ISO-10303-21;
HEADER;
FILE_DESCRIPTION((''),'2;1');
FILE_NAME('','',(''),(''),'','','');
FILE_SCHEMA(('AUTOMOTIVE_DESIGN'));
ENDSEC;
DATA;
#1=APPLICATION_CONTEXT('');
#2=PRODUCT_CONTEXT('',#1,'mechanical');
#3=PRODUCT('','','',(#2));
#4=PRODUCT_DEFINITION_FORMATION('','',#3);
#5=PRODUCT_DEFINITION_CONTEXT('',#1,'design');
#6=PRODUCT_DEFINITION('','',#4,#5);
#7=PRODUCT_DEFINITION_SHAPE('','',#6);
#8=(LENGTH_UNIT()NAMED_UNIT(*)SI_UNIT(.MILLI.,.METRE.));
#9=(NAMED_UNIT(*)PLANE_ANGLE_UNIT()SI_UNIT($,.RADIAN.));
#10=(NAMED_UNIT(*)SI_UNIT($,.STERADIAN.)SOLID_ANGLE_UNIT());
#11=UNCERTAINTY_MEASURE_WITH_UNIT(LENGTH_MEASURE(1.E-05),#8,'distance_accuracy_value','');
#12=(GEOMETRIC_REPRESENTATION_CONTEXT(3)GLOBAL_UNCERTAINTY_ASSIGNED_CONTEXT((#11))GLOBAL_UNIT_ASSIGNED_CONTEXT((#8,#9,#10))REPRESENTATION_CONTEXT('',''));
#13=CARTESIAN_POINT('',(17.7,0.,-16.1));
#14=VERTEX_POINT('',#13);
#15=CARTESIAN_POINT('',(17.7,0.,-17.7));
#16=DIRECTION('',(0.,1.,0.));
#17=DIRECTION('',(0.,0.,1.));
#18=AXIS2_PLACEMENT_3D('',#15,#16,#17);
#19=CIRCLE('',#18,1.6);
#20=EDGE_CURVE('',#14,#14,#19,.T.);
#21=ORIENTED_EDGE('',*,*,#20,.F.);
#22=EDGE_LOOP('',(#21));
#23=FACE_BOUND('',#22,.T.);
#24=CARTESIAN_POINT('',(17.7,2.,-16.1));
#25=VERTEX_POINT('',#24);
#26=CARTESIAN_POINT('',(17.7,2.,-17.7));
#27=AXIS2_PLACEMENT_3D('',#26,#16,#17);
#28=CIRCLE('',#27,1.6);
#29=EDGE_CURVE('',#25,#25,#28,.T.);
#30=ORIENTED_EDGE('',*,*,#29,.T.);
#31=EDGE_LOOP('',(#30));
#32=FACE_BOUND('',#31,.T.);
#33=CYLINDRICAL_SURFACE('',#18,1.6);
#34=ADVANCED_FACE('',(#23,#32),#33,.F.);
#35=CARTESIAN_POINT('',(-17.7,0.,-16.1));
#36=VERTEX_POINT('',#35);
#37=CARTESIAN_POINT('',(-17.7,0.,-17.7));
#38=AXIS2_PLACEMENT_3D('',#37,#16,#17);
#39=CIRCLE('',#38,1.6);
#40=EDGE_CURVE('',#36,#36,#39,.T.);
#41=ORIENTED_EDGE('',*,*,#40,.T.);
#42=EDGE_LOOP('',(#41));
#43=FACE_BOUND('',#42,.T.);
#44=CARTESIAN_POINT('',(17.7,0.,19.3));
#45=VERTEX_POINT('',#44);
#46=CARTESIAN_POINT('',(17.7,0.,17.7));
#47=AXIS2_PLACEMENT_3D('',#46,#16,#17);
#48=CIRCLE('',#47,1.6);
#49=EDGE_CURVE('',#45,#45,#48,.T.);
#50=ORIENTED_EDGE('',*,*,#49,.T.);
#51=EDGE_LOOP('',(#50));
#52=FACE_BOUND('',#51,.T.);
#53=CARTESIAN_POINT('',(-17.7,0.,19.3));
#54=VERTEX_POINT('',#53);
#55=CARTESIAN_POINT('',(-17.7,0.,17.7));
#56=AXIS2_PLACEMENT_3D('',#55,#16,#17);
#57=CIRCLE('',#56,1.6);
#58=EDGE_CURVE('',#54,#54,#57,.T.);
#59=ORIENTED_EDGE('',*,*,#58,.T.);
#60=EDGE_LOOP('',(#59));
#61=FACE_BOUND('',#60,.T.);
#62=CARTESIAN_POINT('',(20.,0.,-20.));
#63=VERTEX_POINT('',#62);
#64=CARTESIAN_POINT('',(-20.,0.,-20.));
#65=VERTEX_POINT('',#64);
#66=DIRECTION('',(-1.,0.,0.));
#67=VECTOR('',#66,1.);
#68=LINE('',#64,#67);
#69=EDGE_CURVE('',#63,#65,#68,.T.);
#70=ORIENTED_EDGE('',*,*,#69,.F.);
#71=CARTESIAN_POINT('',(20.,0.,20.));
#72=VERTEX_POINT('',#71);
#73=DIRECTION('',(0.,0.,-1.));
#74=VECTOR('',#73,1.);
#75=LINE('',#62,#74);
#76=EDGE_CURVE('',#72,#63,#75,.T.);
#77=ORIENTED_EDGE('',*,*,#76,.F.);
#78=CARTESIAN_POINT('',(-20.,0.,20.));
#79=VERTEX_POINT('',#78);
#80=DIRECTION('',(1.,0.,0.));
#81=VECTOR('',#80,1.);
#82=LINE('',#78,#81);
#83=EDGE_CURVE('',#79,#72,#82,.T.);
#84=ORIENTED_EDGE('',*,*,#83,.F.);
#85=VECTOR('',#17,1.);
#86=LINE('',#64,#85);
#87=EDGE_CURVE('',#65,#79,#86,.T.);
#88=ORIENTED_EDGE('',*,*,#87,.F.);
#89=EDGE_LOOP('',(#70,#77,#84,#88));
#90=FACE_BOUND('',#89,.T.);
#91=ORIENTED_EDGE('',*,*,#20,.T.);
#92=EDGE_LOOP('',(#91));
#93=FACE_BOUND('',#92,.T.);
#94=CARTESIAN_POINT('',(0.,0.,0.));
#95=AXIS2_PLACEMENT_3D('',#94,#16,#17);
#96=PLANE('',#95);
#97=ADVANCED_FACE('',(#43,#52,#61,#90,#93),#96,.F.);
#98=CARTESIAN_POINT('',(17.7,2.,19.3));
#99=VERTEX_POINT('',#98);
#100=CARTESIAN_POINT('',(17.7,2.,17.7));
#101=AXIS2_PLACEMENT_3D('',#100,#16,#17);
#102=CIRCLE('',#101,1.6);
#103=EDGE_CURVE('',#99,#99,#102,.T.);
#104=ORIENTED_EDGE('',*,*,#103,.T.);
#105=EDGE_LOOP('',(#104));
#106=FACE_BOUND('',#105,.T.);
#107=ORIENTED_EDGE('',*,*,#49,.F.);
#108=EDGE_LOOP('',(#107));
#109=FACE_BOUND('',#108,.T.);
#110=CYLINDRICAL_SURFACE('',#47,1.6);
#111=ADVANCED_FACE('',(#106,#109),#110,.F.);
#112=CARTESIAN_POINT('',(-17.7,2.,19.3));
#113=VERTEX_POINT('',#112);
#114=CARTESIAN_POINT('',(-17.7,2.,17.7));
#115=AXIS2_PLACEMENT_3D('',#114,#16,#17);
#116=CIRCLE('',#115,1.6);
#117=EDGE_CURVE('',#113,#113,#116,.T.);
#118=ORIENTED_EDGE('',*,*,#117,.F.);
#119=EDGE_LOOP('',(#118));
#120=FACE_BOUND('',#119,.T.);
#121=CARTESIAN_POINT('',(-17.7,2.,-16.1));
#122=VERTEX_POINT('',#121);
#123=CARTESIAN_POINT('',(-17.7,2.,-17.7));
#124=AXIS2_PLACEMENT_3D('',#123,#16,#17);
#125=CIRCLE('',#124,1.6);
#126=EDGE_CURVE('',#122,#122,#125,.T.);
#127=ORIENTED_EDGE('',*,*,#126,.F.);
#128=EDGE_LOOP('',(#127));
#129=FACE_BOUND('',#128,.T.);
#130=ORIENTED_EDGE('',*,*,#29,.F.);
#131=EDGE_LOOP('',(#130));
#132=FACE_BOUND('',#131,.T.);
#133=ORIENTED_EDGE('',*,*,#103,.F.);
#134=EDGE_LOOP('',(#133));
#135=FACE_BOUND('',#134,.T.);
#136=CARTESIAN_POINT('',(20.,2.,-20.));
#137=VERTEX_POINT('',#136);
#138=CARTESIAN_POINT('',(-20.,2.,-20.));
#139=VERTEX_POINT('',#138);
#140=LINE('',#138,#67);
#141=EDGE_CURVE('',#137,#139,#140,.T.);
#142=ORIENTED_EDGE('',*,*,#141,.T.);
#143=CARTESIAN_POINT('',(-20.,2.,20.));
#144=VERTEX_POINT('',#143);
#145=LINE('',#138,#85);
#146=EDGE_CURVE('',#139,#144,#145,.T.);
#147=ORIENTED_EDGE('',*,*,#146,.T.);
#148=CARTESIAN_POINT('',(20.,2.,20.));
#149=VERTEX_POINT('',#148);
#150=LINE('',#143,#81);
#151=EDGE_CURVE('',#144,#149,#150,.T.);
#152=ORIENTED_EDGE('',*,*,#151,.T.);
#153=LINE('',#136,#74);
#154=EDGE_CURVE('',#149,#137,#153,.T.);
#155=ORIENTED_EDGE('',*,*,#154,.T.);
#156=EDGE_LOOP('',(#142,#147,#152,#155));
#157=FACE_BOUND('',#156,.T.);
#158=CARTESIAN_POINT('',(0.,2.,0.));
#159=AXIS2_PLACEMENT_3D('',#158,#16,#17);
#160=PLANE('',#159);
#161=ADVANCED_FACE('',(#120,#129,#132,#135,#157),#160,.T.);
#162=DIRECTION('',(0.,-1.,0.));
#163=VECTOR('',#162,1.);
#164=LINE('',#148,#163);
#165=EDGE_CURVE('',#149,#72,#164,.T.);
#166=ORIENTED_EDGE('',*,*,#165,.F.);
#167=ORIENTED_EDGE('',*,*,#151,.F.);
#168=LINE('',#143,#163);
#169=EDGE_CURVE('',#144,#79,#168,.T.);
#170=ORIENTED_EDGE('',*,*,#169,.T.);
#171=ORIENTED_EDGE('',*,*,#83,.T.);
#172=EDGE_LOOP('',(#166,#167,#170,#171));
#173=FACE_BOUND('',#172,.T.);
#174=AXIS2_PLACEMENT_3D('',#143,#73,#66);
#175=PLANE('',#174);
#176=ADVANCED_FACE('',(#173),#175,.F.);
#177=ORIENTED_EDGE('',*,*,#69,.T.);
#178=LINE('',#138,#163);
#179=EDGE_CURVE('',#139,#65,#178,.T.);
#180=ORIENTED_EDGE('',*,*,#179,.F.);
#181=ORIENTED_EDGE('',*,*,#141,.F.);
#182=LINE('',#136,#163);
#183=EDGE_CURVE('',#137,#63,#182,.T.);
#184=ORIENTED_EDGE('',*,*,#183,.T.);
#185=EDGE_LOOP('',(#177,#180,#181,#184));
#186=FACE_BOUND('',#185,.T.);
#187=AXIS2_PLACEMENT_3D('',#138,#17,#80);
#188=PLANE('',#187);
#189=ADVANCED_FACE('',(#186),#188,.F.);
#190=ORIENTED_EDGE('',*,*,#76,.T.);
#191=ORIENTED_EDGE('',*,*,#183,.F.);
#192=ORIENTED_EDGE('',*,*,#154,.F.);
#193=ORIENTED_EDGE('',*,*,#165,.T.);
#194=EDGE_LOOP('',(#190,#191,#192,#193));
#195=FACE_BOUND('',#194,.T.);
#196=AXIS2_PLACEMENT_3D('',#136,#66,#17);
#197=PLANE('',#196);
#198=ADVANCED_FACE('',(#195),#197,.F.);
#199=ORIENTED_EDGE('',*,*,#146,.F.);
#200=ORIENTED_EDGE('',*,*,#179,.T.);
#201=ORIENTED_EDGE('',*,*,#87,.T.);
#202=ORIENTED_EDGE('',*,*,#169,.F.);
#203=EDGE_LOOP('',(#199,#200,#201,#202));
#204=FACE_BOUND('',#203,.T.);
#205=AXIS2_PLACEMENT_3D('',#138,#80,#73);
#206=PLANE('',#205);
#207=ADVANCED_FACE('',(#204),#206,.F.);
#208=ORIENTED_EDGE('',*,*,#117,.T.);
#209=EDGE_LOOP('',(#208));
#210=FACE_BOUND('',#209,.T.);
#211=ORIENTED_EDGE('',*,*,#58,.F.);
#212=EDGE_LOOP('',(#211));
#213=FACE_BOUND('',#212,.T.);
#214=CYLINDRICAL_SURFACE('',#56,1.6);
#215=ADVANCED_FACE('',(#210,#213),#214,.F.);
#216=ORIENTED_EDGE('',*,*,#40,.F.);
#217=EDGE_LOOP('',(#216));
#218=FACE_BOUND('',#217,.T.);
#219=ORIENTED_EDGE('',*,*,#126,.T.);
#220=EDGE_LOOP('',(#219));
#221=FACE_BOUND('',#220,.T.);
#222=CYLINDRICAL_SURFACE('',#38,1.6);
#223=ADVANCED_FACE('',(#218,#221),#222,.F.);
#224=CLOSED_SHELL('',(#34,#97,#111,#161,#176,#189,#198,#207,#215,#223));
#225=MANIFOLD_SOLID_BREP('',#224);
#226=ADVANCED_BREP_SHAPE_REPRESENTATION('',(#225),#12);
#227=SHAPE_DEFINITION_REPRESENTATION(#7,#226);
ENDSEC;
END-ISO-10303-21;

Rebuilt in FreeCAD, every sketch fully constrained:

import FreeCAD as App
import Part
import Sketcher
Q = App.Units.Quantity

doc = App.newDocument("Part")
body = doc.addObject("PartDesign::Body", "Body")

# Sketch on XZ plane
sketch1 = body.newObject("Sketcher::SketchObject", "Sketch")
sketch1.AttachmentSupport = (doc.getObject("XZ_Plane"), [""])
sketch1.MapMode = "FlatFace"
sketch1.addGeometry(Part.LineSegment(App.Vector(-20, -20, 0), App.Vector(-20, 20, 0)), False)
sketch1.addGeometry(Part.LineSegment(App.Vector(-20, 20, 0), App.Vector(20, 20, 0)), False)
sketch1.addGeometry(Part.LineSegment(App.Vector(20, 20, 0), App.Vector(20, -20, 0)), False)
sketch1.addGeometry(Part.LineSegment(App.Vector(20, -20, 0), App.Vector(-20, -20, 0)), False)
sketch1.addConstraint(Sketcher.Constraint("Coincident", 0, 2, 1, 1))
sketch1.addConstraint(Sketcher.Constraint("Coincident", 1, 2, 2, 1))
sketch1.addConstraint(Sketcher.Constraint("Coincident", 2, 2, 3, 1))
sketch1.addConstraint(Sketcher.Constraint("Coincident", 3, 2, 0, 1))
sketch1.addConstraint(Sketcher.Constraint("Vertical", 0))
sketch1.addConstraint(Sketcher.Constraint("Horizontal", 1))
sketch1.addConstraint(Sketcher.Constraint("Vertical", 2))
sketch1.addConstraint(Sketcher.Constraint("Horizontal", 3))
sketch1.addConstraint(Sketcher.Constraint("Symmetric", 0, 2, 2, 2, -1, 1))
sketch1.addConstraint(Sketcher.Constraint("Equal", 3, 0))
sketch1.addConstraint(Sketcher.Constraint("DistanceX", 1, 1, 1, 2, Q("40 mm")))
pad1 = body.newObject("PartDesign::Pad", "Pad")
pad1.Profile = sketch1
pad1.Length = 2
pad1.Reversed = True

# Sketch on XZ plane
sketch2 = body.newObject("Sketcher::SketchObject", "Sketch001")
sketch2.AttachmentSupport = (doc.getObject("XZ_Plane"), [""])
sketch2.MapMode = "FlatFace"
sketch2.AttachmentOffset = App.Placement(App.Vector(0, 0, -2), App.Rotation())
sketch2.addGeometry(Part.Circle(App.Vector(-17.7, -17.7, 0), App.Vector(0, 0, 1), 1.6), False)
sketch2.addGeometry(Part.Circle(App.Vector(17.7, -17.7, 0), App.Vector(0, 0, 1), 1.6), False)
sketch2.addGeometry(Part.Circle(App.Vector(17.7, 17.7, 0), App.Vector(0, 0, 1), 1.6), False)
sketch2.addGeometry(Part.Circle(App.Vector(-17.7, 17.7, 0), App.Vector(0, 0, 1), 1.6), False)
sketch2.addConstraint(Sketcher.Constraint("Equal", 0, 1))
sketch2.addConstraint(Sketcher.Constraint("Equal", 1, 2))
sketch2.addConstraint(Sketcher.Constraint("Equal", 2, 3))
sketch2.addConstraint(Sketcher.Constraint("Symmetric", 0, 3, 2, 3, -1, 1))
sketch2.addConstraint(Sketcher.Constraint("Symmetric", 1, 3, 3, 3, -1, 1))
sketch2.addConstraint(Sketcher.Constraint("Symmetric", 0, 3, 1, 3, -2))
sketch2.addConstraint(Sketcher.Constraint("Diameter", 0, Q("3.2 mm")))
sketch2.addConstraint(Sketcher.Constraint("DistanceX", 0, 3, -1, 1, Q("17.7 mm")))
sketch2.addConstraint(Sketcher.Constraint("DistanceY", 0, 3, -1, 1, Q("17.7 mm")))
pocket1 = body.newObject("PartDesign::Pocket", "Pocket")
pocket1.Profile = sketch2
pocket1.Type = "ThroughAll"
pocket1.Reversed = True

doc.recompute()
